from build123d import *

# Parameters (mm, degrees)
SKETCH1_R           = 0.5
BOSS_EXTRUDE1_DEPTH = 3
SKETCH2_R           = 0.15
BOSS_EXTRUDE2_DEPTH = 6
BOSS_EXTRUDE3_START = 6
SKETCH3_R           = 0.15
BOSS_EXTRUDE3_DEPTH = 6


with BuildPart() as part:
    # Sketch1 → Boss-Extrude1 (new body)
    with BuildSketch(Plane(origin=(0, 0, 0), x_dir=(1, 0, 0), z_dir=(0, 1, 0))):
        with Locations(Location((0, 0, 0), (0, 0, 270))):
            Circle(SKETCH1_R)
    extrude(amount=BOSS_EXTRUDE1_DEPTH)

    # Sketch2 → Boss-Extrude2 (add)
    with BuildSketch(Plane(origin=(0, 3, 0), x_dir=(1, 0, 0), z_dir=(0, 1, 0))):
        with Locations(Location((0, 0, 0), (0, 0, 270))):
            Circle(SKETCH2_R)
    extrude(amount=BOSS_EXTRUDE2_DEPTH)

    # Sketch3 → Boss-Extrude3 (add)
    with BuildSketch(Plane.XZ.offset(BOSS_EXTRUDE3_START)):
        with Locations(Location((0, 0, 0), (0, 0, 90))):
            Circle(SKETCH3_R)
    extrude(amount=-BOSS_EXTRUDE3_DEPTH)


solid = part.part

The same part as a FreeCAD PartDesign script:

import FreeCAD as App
import Part
import Sketcher
Q = App.Units.Quantity

doc = App.newDocument("Part")
body = doc.addObject("PartDesign::Body", "Body")

# Sketch on XZ plane
sketch1 = body.newObject("Sketcher::SketchObject", "Sketch")
sketch1.AttachmentSupport = (doc.getObject("XZ_Plane"), [""])
sketch1.MapMode = "FlatFace"
sketch1.addGeometry(Part.Circle(App.Vector(0, 0, 0), App.Vector(0, 0, 1), 0.5), False)
sketch1.addConstraint([
    Sketcher.Constraint("Coincident", 0, 3, -1, 1),
    Sketcher.Constraint("Diameter", 0, Q("1 mm")),
])
pad1 = body.newObject("PartDesign::Pad", "Pad")
pad1.Profile = sketch1
pad1.Length = 3
pad1.Reversed = True

# Sketch on XZ plane
sketch2 = body.newObject("Sketcher::SketchObject", "Sketch001")
sketch2.AttachmentSupport = (doc.getObject("XZ_Plane"), [""])
sketch2.MapMode = "FlatFace"
sketch2.AttachmentOffset = App.Placement(App.Vector(0, 0, -3), App.Rotation())
sketch2.addGeometry(Part.Circle(App.Vector(0, 0, 0), App.Vector(0, 0, 1), 0.15), False)
sketch2.addConstraint([
    Sketcher.Constraint("Coincident", 0, 3, -1, 1),
    Sketcher.Constraint("Diameter", 0, Q("0.3 mm")),
])
pad2 = body.newObject("PartDesign::Pad", "Pad001")
pad2.Profile = sketch2
pad2.Length = 6
pad2.Reversed = True

# Sketch on XZ plane
sketch3 = body.newObject("Sketcher::SketchObject", "Sketch002")
sketch3.AttachmentSupport = (doc.getObject("XZ_Plane"), [""])
sketch3.MapMode = "FlatFace"
sketch3.AttachmentOffset = App.Placement(App.Vector(0, 0, 6), App.Rotation())
sketch3.addGeometry(Part.Circle(App.Vector(0, 0, 0), App.Vector(0, 0, 1), 0.15), False)
sketch3.addConstraint([
    Sketcher.Constraint("Coincident", 0, 3, -1, 1),
    Sketcher.Constraint("Diameter", 0, Q("0.3 mm")),
])
pad3 = body.newObject("PartDesign::Pad", "Pad002")
pad3.Profile = sketch3
pad3.Length = 6
pad3.Reversed = True

doc.recompute()
